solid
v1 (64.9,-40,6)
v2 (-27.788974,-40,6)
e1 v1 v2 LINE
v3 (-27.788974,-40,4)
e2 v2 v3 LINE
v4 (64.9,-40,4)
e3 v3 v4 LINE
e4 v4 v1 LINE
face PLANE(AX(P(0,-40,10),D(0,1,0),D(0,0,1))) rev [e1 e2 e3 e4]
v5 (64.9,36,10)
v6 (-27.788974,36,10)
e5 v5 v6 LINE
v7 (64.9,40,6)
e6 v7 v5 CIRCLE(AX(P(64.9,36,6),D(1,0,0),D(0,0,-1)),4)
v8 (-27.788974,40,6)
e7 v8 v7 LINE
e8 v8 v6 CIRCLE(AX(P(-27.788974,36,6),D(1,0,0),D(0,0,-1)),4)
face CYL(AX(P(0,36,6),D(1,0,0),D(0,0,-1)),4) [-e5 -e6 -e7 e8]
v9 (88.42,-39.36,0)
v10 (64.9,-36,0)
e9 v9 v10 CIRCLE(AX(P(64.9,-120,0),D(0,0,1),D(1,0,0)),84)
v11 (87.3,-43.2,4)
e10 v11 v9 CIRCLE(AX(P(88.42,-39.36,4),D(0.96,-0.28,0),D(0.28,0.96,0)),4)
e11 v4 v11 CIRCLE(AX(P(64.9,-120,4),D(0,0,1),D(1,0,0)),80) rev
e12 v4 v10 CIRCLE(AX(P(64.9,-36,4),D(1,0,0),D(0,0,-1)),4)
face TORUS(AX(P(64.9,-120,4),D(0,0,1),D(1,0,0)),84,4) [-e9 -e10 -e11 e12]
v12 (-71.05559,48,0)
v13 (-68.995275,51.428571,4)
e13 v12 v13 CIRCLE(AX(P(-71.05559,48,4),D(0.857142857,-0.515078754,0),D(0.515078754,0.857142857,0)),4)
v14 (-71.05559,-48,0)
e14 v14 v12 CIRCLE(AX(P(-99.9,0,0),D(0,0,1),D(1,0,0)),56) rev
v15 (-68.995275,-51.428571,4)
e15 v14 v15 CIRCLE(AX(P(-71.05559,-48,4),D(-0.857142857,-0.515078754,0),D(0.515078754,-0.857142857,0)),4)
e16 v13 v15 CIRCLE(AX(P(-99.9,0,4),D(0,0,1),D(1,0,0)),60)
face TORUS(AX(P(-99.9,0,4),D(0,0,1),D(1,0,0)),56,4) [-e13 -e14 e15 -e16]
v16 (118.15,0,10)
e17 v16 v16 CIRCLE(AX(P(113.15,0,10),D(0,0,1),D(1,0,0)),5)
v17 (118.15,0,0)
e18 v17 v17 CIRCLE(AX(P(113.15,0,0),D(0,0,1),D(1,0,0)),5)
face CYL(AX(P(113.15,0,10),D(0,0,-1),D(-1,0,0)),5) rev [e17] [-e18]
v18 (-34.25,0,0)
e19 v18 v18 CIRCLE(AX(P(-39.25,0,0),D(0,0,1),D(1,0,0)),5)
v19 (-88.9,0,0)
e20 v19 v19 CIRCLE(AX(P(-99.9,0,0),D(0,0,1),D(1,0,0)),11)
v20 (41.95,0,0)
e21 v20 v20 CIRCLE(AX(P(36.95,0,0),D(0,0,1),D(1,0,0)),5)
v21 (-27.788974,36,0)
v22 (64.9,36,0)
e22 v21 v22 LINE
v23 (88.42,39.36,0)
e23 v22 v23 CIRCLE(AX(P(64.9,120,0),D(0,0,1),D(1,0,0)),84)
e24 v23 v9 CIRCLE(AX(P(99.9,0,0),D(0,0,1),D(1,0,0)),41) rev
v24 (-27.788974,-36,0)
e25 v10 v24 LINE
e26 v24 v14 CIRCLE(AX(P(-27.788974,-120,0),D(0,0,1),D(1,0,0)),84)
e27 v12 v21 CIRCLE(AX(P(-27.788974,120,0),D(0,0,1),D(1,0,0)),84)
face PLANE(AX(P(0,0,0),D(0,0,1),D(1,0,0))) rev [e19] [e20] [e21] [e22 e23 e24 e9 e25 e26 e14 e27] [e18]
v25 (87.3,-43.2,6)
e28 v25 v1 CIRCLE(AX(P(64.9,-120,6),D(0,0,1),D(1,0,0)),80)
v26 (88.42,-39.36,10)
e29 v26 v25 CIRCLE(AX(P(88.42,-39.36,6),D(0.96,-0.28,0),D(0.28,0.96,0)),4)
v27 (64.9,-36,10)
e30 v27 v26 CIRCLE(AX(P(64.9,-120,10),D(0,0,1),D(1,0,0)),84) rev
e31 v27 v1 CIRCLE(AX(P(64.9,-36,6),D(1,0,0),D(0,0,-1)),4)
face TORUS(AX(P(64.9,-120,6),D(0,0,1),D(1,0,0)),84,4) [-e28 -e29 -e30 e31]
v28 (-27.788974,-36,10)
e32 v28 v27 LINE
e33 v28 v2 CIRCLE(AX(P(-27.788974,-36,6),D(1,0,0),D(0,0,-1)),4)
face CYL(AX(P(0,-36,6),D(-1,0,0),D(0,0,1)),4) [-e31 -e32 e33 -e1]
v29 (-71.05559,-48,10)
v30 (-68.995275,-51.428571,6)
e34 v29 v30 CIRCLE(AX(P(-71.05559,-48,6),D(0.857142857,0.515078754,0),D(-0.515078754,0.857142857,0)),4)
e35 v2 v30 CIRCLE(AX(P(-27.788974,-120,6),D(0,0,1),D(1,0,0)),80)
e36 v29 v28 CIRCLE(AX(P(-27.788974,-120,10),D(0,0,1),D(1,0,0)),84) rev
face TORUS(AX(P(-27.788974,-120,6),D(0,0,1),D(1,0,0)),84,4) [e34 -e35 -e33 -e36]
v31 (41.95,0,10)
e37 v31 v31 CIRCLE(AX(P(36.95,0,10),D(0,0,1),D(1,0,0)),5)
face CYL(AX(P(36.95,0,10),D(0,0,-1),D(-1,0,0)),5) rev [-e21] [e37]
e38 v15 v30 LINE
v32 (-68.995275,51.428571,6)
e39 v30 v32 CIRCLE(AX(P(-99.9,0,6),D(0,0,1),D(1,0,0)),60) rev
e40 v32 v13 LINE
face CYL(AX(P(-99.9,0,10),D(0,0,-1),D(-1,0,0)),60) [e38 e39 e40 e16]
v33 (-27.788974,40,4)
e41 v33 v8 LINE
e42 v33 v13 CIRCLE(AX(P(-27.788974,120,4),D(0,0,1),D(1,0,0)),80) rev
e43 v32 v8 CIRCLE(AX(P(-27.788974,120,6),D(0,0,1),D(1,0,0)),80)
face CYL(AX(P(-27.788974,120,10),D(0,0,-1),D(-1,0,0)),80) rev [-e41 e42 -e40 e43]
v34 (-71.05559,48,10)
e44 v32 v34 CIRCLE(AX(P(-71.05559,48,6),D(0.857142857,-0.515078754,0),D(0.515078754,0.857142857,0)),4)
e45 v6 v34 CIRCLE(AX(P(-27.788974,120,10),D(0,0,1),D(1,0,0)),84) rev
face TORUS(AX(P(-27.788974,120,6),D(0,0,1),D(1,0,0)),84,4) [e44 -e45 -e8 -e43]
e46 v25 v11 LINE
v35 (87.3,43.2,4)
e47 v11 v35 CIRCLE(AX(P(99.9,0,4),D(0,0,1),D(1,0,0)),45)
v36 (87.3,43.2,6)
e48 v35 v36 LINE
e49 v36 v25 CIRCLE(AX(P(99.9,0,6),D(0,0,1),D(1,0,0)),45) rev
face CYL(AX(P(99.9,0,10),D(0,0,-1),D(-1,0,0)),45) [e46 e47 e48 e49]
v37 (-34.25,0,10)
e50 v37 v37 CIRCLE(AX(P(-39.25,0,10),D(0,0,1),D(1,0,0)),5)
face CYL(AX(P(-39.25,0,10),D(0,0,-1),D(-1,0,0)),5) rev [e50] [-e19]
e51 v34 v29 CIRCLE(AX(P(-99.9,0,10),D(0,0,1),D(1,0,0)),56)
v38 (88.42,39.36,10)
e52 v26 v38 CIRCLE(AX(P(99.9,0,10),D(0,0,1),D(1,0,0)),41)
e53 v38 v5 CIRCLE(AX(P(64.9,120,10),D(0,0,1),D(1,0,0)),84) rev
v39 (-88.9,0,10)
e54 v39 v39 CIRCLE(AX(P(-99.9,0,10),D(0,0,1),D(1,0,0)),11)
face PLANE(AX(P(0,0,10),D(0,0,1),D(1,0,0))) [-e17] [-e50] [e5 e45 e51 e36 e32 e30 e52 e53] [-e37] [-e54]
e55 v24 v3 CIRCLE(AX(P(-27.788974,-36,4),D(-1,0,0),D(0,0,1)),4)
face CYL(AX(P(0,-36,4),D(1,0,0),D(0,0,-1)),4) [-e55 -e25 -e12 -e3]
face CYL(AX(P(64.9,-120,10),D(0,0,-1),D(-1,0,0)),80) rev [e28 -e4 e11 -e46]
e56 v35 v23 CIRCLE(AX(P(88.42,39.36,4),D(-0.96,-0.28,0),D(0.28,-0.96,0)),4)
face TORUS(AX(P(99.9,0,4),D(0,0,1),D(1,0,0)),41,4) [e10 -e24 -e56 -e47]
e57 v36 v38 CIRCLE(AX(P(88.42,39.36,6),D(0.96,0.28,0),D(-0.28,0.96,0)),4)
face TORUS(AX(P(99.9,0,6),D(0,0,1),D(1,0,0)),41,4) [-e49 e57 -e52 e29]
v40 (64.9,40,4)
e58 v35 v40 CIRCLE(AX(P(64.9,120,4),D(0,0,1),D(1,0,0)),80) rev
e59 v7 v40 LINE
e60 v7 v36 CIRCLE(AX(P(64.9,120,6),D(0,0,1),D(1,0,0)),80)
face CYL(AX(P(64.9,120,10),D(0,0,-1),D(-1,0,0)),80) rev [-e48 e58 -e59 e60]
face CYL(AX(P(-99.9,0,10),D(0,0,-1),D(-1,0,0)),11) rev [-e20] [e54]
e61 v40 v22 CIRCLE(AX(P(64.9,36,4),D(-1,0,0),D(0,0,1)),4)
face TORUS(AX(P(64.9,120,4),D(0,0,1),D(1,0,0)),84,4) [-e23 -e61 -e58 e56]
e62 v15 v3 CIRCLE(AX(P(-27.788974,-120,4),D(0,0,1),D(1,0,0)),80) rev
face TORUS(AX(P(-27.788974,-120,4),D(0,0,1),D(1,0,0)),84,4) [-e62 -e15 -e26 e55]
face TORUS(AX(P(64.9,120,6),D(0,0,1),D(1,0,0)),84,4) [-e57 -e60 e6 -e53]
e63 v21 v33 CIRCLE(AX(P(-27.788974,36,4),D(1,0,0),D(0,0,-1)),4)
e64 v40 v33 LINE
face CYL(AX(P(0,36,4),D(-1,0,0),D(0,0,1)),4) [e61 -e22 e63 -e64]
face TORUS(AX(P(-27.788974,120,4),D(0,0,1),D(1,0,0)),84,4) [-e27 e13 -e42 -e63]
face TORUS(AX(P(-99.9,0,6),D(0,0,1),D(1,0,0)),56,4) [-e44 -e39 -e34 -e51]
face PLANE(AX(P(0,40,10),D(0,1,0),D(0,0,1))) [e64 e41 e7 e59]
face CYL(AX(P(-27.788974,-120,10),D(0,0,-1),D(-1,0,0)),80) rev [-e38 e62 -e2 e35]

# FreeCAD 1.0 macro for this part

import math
import FreeCAD as App
import Part
import Sketcher
from FreeCAD import Vector


def edges_at(feature, points):
    """Names of the edges that pass closest to the given points."""
    edges = feature.Shape.Edges
    near = lambda p: min(range(len(edges)), key=lambda i: edges[i].distToShape(Part.Vertex(*p))[0])
    return sorted({f"Edge{near(p) + 1}" for p in points})

doc = App.newDocument("Part")
params = doc.addObject("Spreadsheet::Sheet", "Params")
for row, (alias, value) in enumerate([
    ("sketch1_diameter", "22 mm"),
    ("sketch1_diameter2", "10 mm"),
    ("sketch1_radius", "60 mm"),
    ("sketch1_radius2", "45 mm"),
    ("pad1_length", "10 mm"),
    ("fillet_radius", "80 mm"),
    ("fillet2_radius", "4 mm"),
], start=1):
    params.set(f"A{row}", alias)
    params.set(f"B{row}", "=" + value)
    params.setAlias(f"B{row}", alias)

body = doc.addObject("PartDesign::Body", "Body")

# Sketch on XY plane
sketch1 = doc.addObject("Sketcher::SketchObject", "Sketch")
body.addObject(sketch1)
sketch1.AttachmentSupport = (doc.XY_Plane, [""])
sketch1.MapMode = "FlatFace"
sketch1.addGeometry([
    Part.ArcOfCircle(Part.Circle(Vector(-100, 0, 0), Vector(0, 0, 1), 60), math.radians(42), math.radians(318)),  # 0
    Part.LineSegment(Vector(-55, -40, 0), Vector(79, -40, 0)),  # 1
    Part.ArcOfCircle(Part.Circle(Vector(100, 0, 0), Vector(0, 0, 1), 45), math.radians(-117), math.radians(117)),  # 2
    Part.LineSegment(Vector(79, 40, 0), Vector(-55, 40, 0)),  # 3
    Part.Circle(Vector(-100, 0, 0), Vector(0, 0, 1), 11),  # 4
    Part.Circle(Vector(-39, 0, 0), Vector(0, 0, 1), 5),  # 5
    Part.Circle(Vector(37, 0, 0), Vector(0, 0, 1), 5),  # 6
    Part.Circle(Vector(113, 0, 0), Vector(0, 0, 1), 5),  # 7
], False)
sketch1.addConstraint([
    Sketcher.Constraint("Coincident", 0, 2, 1, 1),
    Sketcher.Constraint("Coincident", 1, 2, 2, 1),
    Sketcher.Constraint("Coincident", 2, 2, 3, 1),
    Sketcher.Constraint("Coincident", 3, 2, 0, 1),
    Sketcher.Constraint("Horizontal", 1),
    Sketcher.Constraint("Horizontal", 3),
    Sketcher.Constraint("Coincident", 4, 3, 0, 3),
    Sketcher.Constraint("Equal", 5, 6),
    Sketcher.Constraint("Equal", 6, 7),
    Sketcher.Constraint("Symmetric", 0, 3, 2, 3, -1, 1),
    Sketcher.Constraint("Symmetric", 1, 2, 2, 2, -1),
    Sketcher.Constraint("PointOnObject", 5, 3, -1),
    Sketcher.Constraint("PointOnObject", 6, 3, -1),
    Sketcher.Constraint("PointOnObject", 7, 3, -1),
    Sketcher.Constraint("Diameter", 4, 22.0),
    Sketcher.Constraint("Diameter", 5, 10.0),
    Sketcher.Constraint("Radius", 0, 60.0),
    Sketcher.Constraint("Radius", 2, 45.0),
    Sketcher.Constraint("DistanceY", 0, 2, -1, 1, 40.0),
    Sketcher.Constraint("DistanceX", 0, 3, -1, 1, 99.9),
    Sketcher.Constraint("DistanceX", 5, 3, 6, 3, 76.2),
    Sketcher.Constraint("DistanceX", 6, 3, 7, 3, 76.2),
    Sketcher.Constraint("DistanceX", 5, 3, -1, 1, 39.25),
])
sketch1.setExpression("Constraints[14]", "Params.sketch1_diameter")
sketch1.setExpression("Constraints[15]", "Params.sketch1_diameter2")
sketch1.setExpression("Constraints[16]", "Params.sketch1_radius")
sketch1.setExpression("Constraints[17]", "Params.sketch1_radius2")
pad1 = doc.addObject("PartDesign::Pad", "Pad")
body.addObject(pad1)
pad1.Profile = sketch1
pad1.setExpression("Length", "Params.pad1_length")
doc.recompute()

fillet = doc.addObject("PartDesign::Fillet", "Fillet")
body.addObject(fillet)
fillet.Base = (pad1, edges_at(pad1, [
    (79.284, 40, 5),
    (79.284, -40, 5),
    (-55.179, -40, 5),
    (-55.179, 40, 5),
]))
fillet.setExpression("Radius", "Params.fillet_radius")
doc.recompute()

fillet2 = doc.addObject("PartDesign::Fillet", "Fillet001")
body.addObject(fillet2)
fillet2.Base = (fillet, edges_at(fillet, [
    (18.556, -40, 0),
    (18.556, -40, 10),
    (-159.9, 0, 0),
    (-159.9, 0, 10),
    (18.556, 40, 0),
    (18.556, 40, 10),
    (144.9, 0, 0),
    (144.9, 0, 10),
    (-49.17, -42.91, 0),
    (-49.17, -42.91, 10),
    (-49.17, 42.91, 0),
    (-49.17, 42.91, 10),
    (76.214, -40.804, 0),
    (76.214, -40.804, 10),
    (76.214, 40.804, 0),
    (76.214, 40.804, 10),
]))
fillet2.setExpression("Radius", "Params.fillet2_radius")

doc.recompute()
